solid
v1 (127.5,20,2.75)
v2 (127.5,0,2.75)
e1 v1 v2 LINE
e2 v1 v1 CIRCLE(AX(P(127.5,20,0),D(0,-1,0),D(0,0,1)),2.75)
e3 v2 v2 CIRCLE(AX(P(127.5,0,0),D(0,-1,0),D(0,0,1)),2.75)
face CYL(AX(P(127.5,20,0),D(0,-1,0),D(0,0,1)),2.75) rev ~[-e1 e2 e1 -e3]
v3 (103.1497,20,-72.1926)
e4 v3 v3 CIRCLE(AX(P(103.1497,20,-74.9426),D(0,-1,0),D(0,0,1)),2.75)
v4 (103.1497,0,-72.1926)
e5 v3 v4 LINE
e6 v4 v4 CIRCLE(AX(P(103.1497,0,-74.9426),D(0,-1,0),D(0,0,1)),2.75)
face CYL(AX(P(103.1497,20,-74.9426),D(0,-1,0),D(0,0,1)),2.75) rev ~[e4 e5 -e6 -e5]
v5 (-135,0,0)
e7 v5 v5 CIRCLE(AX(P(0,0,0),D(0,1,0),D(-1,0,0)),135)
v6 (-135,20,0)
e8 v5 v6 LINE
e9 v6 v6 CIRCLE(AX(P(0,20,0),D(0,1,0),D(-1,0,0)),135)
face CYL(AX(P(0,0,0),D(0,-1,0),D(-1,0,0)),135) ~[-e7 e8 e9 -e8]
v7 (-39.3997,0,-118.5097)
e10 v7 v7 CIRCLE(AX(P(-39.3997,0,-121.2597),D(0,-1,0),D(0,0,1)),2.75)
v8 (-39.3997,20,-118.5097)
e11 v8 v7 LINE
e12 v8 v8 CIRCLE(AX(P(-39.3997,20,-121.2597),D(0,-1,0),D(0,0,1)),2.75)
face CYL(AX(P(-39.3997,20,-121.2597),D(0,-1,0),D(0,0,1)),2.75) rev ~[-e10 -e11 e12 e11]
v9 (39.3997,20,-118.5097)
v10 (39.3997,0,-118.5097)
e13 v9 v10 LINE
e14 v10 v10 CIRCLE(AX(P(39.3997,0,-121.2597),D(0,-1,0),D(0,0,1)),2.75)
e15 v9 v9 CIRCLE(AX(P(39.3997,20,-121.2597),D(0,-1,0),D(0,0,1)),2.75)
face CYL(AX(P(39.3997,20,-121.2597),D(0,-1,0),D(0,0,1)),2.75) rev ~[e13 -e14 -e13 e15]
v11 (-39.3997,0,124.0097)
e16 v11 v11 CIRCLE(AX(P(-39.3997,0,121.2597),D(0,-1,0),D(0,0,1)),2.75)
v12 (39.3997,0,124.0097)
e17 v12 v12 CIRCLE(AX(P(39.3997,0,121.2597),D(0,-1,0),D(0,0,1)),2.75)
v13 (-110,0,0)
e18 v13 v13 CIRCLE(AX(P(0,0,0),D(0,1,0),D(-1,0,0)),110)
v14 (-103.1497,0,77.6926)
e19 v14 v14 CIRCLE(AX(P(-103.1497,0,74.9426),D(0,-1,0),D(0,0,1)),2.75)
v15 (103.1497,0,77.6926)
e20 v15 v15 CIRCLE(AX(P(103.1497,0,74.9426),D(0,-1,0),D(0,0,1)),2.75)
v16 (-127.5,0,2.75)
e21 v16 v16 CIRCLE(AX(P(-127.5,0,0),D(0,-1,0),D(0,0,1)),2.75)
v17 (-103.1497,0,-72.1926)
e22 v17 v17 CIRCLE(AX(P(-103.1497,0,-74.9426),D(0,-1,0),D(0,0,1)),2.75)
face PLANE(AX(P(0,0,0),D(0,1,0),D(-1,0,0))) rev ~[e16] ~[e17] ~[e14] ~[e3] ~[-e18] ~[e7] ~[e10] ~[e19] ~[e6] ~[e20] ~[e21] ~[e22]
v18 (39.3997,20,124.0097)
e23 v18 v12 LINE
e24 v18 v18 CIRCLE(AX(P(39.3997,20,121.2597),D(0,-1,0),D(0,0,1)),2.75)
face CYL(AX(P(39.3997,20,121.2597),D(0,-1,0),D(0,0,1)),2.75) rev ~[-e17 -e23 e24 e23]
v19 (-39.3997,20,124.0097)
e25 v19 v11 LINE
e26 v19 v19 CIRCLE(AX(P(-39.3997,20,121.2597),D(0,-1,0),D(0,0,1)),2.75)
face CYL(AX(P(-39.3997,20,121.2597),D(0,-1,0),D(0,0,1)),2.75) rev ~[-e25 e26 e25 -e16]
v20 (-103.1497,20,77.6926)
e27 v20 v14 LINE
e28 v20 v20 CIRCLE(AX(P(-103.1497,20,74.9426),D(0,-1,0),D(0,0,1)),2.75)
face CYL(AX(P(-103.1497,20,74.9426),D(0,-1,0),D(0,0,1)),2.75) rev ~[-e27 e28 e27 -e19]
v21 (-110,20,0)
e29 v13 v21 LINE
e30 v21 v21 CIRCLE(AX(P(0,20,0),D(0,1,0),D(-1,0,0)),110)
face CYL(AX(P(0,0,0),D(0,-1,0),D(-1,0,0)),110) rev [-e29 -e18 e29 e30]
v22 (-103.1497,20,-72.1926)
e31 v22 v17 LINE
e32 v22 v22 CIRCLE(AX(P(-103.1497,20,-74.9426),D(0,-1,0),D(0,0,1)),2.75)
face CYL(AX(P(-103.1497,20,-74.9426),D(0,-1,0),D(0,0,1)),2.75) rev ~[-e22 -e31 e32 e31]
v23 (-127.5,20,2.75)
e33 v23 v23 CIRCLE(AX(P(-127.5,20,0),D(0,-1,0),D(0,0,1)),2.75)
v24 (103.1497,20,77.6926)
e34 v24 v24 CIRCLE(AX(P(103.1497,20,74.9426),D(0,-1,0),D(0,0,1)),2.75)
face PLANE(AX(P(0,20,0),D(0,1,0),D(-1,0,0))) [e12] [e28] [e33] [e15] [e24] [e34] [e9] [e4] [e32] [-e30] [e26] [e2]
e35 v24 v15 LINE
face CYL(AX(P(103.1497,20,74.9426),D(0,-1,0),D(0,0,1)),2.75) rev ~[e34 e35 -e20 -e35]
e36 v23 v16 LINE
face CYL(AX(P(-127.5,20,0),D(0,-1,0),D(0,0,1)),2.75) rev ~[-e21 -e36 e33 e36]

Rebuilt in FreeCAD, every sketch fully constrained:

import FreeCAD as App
import Part
import Sketcher

doc = App.newDocument("Part")
params = doc.addObject("Spreadsheet::Sheet", "Params")
for row, (alias, value) in enumerate([
    ("sketch1_diameter", "270 mm"),
    ("sketch1_diameter2", "220 mm"),
    ("pad1_length", "20 mm"),
    ("sketch2_diameter", "5.5 mm"),
    ("hole_diameter", "5.5 mm"),
], start=1):
    params.set(f"A{row}", alias)
    params.set(f"B{row}", "=" + value)
    params.setAlias(f"B{row}", alias)

body = doc.addObject("PartDesign::Body", "Body")

sketch1 = body.newObject("Sketcher::SketchObject", "Sketch")
sketch1.AttachmentSupport = (doc.getObject("XZ_Plane"), [""])
sketch1.MapMode = "FlatFace"
sketch1.addGeometry([
    Part.Circle(App.Vector(0, 0, 0), App.Vector(0, 0, 1), 135),
    Part.Circle(App.Vector(0, 0, 0), App.Vector(0, 0, 1), 110),
], False)
sketch1.addConstraint([
    Sketcher.Constraint("Coincident", 0, 3, -1, 1),
    Sketcher.Constraint("Coincident", 1, 3, -1, 1),
    Sketcher.Constraint("Diameter", 0, 270.0),
    Sketcher.Constraint("Diameter", 1, 220.0),
])
sketch1.setExpression("Constraints[2]", "Params.sketch1_diameter")
sketch1.setExpression("Constraints[3]", "Params.sketch1_diameter2")
pad1 = body.newObject("PartDesign::Pad", "Pad")
pad1.Profile = sketch1
pad1.setExpression("Length", "Params.pad1_length")
pad1.Reversed = True

sketch2 = body.newObject("Sketcher::SketchObject", "Sketch001")
sketch2.AttachmentSupport = (doc.getObject("XZ_Plane"), [""])
sketch2.MapMode = "FlatFace"
sketch2.AttachmentOffset = App.Placement(App.Vector(0, 0, -20), App.Rotation())
sketch2.addGeometry([
    Part.Circle(App.Vector(103.1, 74.9, 0), App.Vector(0, 0, 1), 2.8),
    Part.Circle(App.Vector(127.5, 0, 0), App.Vector(0, 0, 1), 2.8),
    Part.Circle(App.Vector(103.1, -74.9, 0), App.Vector(0, 0, 1), 2.8),
    Part.Circle(App.Vector(39.4, -121.3, 0), App.Vector(0, 0, 1), 2.8),
    Part.Circle(App.Vector(-39.4, -121.3, 0), App.Vector(0, 0, 1), 2.8),
    Part.Circle(App.Vector(-103.1, -74.9, 0), App.Vector(0, 0, 1), 2.8),
    Part.Circle(App.Vector(-127.5, 0, 0), App.Vector(0, 0, 1), 2.8),
    Part.Circle(App.Vector(-103.1, 74.9, 0), App.Vector(0, 0, 1), 2.8),
    Part.Circle(App.Vector(-39.4, 121.3, 0), App.Vector(0, 0, 1), 2.8),
    Part.Circle(App.Vector(39.4, 121.3, 0), App.Vector(0, 0, 1), 2.8),
], False)
sketch2.addConstraint([
    Sketcher.Constraint("Equal", 0, 1),
    Sketcher.Constraint("Equal", 1, 2),
    Sketcher.Constraint("Equal", 2, 3),
    Sketcher.Constraint("Equal", 3, 4),
    Sketcher.Constraint("Equal", 4, 5),
    Sketcher.Constraint("Equal", 5, 6),
    Sketcher.Constraint("Equal", 6, 7),
    Sketcher.Constraint("Equal", 7, 8),
    Sketcher.Constraint("Equal", 8, 9),
    Sketcher.Constraint("Symmetric", 0, 3, 5, 3, -1, 1),
    Sketcher.Constraint("Symmetric", 1, 3, 6, 3, -1, 1),
    Sketcher.Constraint("Symmetric", 2, 3, 7, 3, -1, 1),
    Sketcher.Constraint("Symmetric", 3, 3, 8, 3, -1, 1),
    Sketcher.Constraint("Symmetric", 4, 3, 9, 3, -1, 1),
    Sketcher.Constraint("Symmetric", 3, 3, 4, 3, -2),
    Sketcher.Constraint("Symmetric", 2, 3, 5, 3, -2),
    Sketcher.Constraint("PointOnObject", 1, 3, -1),
    Sketcher.Constraint("Diameter", 0, 5.5),
    Sketcher.Constraint("DistanceX", -1, 1, 1, 3, 127.5),
    Sketcher.Constraint("DistanceX", 3, 3, 2, 3, 63.75),
    Sketcher.Constraint("DistanceY", 3, 3, 2, 3, 46.317),
    Sketcher.Constraint("DistanceX", -1, 1, 0, 3, 103.1497),
    Sketcher.Constraint("DistanceY", -1, 1, 0, 3, 74.9426),
])
sketch2.setExpression("Constraints[17]", "Params.sketch2_diameter")
doc.recompute()
hole = body.newObject("PartDesign::Hole", "Hole")
hole.Profile = sketch2
hole.ThreadType = "None"
hole.setExpression("Diameter", "Params.hole_diameter")
hole.DepthType = "ThroughAll"
hole.Reversed = True

doc.recompute()
